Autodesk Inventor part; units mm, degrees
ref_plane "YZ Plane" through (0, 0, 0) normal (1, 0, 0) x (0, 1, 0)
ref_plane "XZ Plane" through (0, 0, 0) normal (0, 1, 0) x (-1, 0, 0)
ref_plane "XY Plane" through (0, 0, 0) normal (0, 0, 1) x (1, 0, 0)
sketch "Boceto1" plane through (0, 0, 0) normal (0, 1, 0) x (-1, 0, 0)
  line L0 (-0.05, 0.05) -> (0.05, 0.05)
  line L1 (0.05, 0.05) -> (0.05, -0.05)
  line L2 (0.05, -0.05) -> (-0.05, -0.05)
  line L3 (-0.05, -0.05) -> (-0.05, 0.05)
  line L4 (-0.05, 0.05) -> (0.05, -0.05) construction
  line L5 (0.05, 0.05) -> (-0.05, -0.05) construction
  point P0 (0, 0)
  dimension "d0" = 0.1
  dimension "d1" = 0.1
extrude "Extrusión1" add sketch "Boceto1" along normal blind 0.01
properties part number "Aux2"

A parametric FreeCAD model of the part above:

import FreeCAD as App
import Part
import Sketcher
Q = App.Units.Quantity


def add_polygon(sketch, points):
    """Adds a closed chain of lines whose ends are joined by coincident constraints."""
    first, n = sketch.GeometryCount, len(points)
    for a, b in zip(points, points[1:] + points[:1]):
        sketch.addGeometry(Part.LineSegment(App.Vector(*a, 0), App.Vector(*b, 0)), False)
    for i in range(n):
        sketch.addConstraint(Sketcher.Constraint("Coincident", first + i, 2, first + (i + 1) % n, 1))

doc = App.newDocument("Part")
body = doc.addObject("PartDesign::Body", "Body")

sketch1 = doc.addObject("Sketcher::SketchObject", "Sketch")
body.addObject(sketch1)
sketch1.AttachmentSupport = (doc.XZ_Plane, [""])
sketch1.MapMode = "FlatFace"
add_polygon(sketch1, [(-0.05, 0.05), (0.05, 0.05), (0.05, -0.05), (-0.05, -0.05)])
sketch1.addConstraint(Sketcher.Constraint("Horizontal", 0))
sketch1.addConstraint(Sketcher.Constraint("Vertical", 1))
sketch1.addConstraint(Sketcher.Constraint("Horizontal", 2))
sketch1.addConstraint(Sketcher.Constraint("Vertical", 3))
sketch1.addConstraint(Sketcher.Constraint("Symmetric", 0, 2, 2, 2, -1, 1))
sketch1.addConstraint(Sketcher.Constraint("Equal", 2, 1))
sketch1.addConstraint(Sketcher.Constraint("DistanceX", 0, 1, 0, 2, Q("0.1 mm")))
pad1 = doc.addObject("PartDesign::Pad", "Pad")
body.addObject(pad1)
pad1.Profile = sketch1
pad1.Length = 0.01
pad1.Reversed = True

doc.recompute()
